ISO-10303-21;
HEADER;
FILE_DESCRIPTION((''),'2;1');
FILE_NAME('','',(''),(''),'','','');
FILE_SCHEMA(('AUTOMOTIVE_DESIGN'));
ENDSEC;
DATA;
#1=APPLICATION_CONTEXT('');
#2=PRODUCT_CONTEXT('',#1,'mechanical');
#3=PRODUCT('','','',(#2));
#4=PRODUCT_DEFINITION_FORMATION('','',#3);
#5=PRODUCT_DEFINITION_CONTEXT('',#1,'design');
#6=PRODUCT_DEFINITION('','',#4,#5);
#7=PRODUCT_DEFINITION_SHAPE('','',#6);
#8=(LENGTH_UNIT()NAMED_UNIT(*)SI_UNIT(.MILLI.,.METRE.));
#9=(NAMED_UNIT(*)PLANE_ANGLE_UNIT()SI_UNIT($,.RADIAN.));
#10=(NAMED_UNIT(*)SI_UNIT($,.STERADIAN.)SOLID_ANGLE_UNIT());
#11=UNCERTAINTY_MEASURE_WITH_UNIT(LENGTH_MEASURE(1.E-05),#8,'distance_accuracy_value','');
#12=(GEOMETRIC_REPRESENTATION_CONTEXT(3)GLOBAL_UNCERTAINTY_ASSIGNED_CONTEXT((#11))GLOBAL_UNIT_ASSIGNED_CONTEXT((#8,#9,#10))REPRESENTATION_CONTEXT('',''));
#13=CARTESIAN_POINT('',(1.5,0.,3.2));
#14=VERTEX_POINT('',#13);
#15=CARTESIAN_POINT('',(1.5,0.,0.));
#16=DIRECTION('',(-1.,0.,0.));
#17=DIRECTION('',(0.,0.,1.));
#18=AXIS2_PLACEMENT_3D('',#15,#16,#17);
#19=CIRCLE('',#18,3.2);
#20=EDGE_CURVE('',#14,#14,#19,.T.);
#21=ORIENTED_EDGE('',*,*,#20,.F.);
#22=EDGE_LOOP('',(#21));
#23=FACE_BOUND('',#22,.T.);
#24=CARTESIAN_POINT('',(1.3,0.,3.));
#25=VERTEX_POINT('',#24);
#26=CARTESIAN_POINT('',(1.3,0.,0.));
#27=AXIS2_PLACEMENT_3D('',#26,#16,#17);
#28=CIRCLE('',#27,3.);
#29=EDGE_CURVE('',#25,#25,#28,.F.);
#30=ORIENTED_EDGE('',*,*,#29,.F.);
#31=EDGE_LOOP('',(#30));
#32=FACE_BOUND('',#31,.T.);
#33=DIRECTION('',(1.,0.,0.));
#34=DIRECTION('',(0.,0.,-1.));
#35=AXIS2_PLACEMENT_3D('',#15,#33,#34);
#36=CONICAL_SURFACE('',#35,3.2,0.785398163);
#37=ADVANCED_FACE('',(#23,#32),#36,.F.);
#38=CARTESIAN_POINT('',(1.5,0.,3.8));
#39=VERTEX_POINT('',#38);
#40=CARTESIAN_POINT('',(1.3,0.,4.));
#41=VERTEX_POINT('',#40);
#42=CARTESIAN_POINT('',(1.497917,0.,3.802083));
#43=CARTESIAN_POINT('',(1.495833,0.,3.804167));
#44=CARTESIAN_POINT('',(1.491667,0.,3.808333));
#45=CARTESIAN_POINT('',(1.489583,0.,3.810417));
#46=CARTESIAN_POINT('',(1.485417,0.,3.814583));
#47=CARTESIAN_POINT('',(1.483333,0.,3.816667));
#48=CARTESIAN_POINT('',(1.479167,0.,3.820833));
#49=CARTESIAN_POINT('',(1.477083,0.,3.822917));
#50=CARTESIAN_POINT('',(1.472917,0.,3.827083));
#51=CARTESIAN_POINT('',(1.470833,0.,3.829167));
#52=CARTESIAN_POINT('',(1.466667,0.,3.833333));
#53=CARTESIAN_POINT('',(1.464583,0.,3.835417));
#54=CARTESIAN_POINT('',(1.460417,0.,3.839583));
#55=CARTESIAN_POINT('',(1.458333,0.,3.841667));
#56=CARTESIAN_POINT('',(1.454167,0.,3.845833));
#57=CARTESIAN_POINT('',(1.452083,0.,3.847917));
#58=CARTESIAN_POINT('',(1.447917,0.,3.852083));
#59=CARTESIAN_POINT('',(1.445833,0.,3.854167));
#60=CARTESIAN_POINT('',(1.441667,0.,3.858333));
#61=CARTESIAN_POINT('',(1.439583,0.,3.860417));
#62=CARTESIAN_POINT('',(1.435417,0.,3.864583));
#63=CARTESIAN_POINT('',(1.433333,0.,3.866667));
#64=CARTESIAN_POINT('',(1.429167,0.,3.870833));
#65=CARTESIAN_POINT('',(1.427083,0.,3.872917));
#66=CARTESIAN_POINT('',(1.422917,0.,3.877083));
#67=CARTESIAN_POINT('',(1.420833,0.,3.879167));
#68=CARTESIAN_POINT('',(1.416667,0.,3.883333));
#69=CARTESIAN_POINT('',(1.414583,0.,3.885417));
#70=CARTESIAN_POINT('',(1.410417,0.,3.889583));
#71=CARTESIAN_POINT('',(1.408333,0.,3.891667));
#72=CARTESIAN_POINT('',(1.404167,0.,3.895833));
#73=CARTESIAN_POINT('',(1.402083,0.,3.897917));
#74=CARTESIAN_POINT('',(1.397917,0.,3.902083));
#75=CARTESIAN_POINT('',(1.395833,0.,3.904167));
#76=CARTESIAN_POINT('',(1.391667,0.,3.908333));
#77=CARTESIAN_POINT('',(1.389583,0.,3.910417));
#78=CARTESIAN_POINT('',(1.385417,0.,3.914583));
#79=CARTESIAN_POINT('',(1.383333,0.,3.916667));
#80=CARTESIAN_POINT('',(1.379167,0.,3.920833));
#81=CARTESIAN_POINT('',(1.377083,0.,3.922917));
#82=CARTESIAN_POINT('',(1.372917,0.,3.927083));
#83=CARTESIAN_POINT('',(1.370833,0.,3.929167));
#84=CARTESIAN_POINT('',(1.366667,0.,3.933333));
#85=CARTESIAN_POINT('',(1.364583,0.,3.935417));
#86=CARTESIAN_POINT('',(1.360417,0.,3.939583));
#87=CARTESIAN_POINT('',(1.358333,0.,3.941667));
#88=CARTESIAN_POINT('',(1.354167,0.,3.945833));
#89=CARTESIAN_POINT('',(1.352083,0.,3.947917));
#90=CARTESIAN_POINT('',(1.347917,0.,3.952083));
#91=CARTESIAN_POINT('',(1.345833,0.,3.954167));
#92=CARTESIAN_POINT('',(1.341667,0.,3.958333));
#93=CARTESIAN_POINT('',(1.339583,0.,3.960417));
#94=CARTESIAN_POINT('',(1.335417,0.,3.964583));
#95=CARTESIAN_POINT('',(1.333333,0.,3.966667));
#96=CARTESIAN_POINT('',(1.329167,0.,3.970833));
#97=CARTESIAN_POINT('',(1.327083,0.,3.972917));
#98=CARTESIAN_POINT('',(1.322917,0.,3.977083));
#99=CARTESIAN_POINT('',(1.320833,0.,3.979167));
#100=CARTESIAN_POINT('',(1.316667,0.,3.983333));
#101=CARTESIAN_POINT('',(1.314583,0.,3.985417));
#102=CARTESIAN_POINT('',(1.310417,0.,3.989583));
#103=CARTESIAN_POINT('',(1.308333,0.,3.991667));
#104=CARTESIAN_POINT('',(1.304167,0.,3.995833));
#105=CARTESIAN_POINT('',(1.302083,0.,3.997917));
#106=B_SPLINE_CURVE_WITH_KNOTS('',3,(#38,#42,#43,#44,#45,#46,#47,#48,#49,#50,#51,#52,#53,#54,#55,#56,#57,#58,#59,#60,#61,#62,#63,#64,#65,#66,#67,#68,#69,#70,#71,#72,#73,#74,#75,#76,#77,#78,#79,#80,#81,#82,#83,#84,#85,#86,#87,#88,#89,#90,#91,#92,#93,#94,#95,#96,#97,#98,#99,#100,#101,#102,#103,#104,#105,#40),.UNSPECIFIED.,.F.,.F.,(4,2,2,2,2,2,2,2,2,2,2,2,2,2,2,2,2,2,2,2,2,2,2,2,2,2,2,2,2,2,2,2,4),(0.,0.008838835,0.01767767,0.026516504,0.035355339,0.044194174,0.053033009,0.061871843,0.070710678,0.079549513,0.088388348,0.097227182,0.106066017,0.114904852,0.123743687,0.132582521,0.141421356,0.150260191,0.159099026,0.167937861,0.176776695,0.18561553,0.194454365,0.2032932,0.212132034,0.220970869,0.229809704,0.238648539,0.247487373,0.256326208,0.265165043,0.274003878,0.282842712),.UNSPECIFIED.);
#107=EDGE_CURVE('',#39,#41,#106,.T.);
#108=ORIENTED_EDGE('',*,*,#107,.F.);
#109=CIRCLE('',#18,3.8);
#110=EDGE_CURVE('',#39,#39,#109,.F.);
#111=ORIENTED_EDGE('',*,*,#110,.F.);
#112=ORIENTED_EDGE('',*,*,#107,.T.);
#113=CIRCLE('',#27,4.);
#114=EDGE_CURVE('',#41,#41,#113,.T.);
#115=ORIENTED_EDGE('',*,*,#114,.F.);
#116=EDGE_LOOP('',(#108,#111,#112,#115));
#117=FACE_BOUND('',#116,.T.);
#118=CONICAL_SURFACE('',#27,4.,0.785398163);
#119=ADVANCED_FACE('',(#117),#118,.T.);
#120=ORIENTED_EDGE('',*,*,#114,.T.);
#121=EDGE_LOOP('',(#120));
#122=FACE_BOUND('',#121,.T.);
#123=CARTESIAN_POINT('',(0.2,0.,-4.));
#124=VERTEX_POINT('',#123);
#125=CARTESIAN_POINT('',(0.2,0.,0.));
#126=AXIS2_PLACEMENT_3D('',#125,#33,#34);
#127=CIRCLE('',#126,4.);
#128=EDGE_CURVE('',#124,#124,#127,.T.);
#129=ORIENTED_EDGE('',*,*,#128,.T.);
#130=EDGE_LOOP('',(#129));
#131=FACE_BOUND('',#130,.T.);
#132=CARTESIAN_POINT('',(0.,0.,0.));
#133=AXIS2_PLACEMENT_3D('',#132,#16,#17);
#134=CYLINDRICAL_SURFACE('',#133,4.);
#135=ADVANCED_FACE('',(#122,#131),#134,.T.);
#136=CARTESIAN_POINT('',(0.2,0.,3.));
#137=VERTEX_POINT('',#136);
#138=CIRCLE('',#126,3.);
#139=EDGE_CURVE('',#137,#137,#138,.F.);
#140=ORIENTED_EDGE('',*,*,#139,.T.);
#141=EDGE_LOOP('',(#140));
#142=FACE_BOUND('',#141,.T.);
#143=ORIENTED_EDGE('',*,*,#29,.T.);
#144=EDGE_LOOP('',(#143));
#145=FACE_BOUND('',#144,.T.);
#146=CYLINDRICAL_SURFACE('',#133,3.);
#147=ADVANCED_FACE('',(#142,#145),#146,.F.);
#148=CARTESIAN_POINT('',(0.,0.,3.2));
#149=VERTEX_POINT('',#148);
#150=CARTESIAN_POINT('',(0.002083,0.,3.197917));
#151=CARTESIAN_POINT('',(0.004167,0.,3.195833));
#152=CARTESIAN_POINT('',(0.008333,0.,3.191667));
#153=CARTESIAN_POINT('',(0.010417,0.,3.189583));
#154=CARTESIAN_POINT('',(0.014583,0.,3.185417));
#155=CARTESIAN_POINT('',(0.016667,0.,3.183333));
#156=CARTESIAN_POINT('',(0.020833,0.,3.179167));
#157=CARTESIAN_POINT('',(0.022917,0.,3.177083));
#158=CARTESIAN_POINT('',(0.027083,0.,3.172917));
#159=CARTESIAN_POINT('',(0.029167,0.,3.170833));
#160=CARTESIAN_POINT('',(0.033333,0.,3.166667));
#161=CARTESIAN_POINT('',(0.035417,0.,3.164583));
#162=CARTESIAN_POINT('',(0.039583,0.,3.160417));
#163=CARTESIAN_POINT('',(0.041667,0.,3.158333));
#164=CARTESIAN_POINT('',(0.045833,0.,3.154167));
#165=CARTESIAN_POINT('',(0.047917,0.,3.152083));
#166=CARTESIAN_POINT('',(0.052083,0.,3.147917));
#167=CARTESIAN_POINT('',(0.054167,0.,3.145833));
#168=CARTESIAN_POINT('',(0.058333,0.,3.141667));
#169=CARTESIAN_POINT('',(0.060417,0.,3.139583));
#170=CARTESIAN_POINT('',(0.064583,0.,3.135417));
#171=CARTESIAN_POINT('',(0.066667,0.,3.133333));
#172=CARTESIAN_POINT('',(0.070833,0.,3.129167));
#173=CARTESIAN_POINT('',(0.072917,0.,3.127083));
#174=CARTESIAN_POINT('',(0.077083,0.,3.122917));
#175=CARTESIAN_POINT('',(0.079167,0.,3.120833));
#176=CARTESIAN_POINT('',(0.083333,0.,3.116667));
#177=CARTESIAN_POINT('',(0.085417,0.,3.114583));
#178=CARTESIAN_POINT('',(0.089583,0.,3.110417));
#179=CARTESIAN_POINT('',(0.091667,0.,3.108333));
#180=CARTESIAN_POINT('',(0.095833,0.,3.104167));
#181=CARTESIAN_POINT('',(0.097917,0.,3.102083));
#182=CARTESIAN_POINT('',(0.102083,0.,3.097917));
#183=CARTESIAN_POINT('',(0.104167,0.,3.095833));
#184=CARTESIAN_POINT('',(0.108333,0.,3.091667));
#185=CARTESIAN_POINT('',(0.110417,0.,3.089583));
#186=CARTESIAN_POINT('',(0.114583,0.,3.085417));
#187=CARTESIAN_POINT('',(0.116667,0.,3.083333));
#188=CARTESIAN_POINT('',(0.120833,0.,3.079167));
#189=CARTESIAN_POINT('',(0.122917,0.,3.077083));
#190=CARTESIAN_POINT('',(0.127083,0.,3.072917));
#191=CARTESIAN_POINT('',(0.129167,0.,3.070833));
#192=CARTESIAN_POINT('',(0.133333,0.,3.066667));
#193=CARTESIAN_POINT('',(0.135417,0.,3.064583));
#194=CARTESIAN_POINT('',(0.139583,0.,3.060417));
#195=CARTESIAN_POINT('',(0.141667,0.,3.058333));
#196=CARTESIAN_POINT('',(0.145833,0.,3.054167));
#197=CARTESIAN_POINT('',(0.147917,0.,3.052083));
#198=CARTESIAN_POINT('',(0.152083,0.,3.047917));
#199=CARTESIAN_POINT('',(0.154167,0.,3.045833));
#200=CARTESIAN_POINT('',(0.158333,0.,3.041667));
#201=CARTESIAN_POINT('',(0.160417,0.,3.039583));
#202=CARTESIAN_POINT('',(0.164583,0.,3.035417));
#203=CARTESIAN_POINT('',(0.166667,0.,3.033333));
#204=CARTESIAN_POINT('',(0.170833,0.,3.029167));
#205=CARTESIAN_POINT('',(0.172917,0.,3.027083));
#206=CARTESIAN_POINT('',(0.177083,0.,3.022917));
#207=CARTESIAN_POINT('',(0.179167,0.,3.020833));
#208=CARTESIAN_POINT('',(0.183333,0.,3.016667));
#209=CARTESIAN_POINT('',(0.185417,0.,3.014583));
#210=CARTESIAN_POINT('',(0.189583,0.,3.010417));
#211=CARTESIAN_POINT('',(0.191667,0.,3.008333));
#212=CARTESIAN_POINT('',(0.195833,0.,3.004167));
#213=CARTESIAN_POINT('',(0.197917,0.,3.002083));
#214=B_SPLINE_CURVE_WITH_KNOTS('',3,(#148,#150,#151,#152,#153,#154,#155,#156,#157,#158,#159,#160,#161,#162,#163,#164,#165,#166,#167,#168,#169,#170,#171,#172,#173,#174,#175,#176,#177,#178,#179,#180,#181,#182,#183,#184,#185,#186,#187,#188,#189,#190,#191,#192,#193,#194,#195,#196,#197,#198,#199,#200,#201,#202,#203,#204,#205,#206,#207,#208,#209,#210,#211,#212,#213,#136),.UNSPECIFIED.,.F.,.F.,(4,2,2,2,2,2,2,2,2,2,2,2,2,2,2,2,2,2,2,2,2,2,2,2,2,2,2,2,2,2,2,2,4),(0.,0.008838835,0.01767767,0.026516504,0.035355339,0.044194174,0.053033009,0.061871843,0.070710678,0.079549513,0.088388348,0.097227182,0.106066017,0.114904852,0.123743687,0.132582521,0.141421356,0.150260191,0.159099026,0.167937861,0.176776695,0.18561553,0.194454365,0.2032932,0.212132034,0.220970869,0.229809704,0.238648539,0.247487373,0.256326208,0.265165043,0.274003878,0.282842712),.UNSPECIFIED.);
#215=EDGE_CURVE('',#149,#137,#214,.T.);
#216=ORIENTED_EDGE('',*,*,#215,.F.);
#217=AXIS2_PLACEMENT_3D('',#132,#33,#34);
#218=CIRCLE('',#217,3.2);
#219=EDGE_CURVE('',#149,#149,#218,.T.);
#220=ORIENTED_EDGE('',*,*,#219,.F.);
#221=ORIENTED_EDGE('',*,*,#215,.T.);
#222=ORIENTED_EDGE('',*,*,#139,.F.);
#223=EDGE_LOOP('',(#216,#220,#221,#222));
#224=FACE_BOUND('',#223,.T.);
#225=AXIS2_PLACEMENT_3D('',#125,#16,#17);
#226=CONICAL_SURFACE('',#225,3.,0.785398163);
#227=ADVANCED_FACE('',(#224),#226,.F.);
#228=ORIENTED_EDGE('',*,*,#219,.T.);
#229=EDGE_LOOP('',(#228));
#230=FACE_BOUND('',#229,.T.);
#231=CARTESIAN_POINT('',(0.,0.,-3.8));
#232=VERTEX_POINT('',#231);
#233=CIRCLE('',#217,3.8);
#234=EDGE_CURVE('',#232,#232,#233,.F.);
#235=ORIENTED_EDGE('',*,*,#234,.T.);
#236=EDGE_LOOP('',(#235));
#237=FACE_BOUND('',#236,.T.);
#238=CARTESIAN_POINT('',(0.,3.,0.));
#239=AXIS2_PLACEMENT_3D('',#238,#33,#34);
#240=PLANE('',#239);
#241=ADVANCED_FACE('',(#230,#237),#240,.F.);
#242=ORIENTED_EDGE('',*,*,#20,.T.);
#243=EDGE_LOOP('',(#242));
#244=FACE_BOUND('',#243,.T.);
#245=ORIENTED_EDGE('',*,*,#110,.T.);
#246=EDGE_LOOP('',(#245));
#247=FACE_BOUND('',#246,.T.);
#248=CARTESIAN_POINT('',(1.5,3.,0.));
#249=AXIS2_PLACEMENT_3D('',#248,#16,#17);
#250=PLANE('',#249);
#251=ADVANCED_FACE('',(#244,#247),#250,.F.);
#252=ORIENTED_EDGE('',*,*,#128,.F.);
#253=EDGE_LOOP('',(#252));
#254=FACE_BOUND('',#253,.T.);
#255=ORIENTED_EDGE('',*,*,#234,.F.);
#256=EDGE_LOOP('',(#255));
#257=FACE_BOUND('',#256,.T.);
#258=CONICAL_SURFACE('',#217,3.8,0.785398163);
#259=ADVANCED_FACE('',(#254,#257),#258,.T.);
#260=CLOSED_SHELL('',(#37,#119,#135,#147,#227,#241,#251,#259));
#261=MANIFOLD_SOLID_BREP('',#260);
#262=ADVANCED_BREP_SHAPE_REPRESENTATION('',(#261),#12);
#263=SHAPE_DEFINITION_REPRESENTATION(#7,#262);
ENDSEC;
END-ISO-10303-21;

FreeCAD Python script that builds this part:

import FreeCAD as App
import Part
import Sketcher
from FreeCAD import Vector


def edges_at(feature, points):
    """Names of the edges that pass closest to the given points."""
    edges = feature.Shape.Edges
    near = lambda p: min(range(len(edges)), key=lambda i: edges[i].distToShape(Part.Vertex(*p))[0])
    return sorted({f"Edge{near(p) + 1}" for p in points})


def add_polygon(sketch, points):
    """Adds a closed chain of lines whose ends are joined by coincident constraints."""
    first, n = sketch.GeometryCount, len(points)
    for a, b in zip(points, points[1:] + points[:1]):
        sketch.addGeometry(Part.LineSegment(App.Vector(*a, 0), App.Vector(*b, 0)), False)
    for i in range(n):
        sketch.addConstraint(Sketcher.Constraint("Coincident", first + i, 2, first + (i + 1) % n, 1))

doc = App.newDocument("Part")
params = doc.addObject("Spreadsheet::Sheet", "Params")
for row, (alias, value) in enumerate([
    ("sketch1_height", "1 mm"),
    ("sketch1_width", "1.5 mm"),
    ("revolution_angle", "360 deg"),
    ("chamfer_size", "0.2 mm"),
], start=1):
    params.set(f"A{row}", alias)
    params.set(f"B{row}", "=" + value)
    params.setAlias(f"B{row}", alias)

body = doc.addObject("PartDesign::Body", "Body")

# Sketch on XY plane
sketch1 = body.newObject("Sketcher::SketchObject", "Sketch")
sketch1.AttachmentSupport = (doc.getObject("XY_Plane"), [""])
sketch1.MapMode = "FlatFace"
add_polygon(sketch1, [(0, 4), (0, 3), (1.5, 3), (1.5, 4)])  # lines 0-3
sketch1.addConstraint(Sketcher.Constraint("Vertical", 0))
sketch1.addConstraint(Sketcher.Constraint("Horizontal", 1))
sketch1.addConstraint(Sketcher.Constraint("Vertical", 2))
sketch1.addConstraint(Sketcher.Constraint("Horizontal", 3))
sketch1.addConstraint(Sketcher.Constraint("PointOnObject", 0, 2, -2))
sketch1.addConstraint(Sketcher.Constraint("DistanceY", 0, 2, 0, 1, 1.0))
sketch1.addConstraint(Sketcher.Constraint("DistanceX", 1, 1, 1, 2, 1.5))
sketch1.addConstraint(Sketcher.Constraint("DistanceY", -1, 1, 0, 2, 3.0))
sketch1.setExpression("Constraints[9]", "Params.sketch1_height")
sketch1.setExpression("Constraints[10]", "Params.sketch1_width")
revolution = body.newObject("PartDesign::Revolution", "Revolution")
revolution.Profile = sketch1
revolution.ReferenceAxis = (sketch1, ["H_Axis"])
revolution.setExpression("Angle", "Params.revolution_angle")
doc.recompute()

chamfer = body.newObject("PartDesign::Chamfer", "Chamfer")
chamfer.Base = (revolution, edges_at(revolution, [
    (0, 0, -3),
    (1.5, 0, -3),
    (1.5, 0, -4),
    (0, 0, -4),
]))
chamfer.setExpression("Size", "Params.chamfer_size")

doc.recompute()
